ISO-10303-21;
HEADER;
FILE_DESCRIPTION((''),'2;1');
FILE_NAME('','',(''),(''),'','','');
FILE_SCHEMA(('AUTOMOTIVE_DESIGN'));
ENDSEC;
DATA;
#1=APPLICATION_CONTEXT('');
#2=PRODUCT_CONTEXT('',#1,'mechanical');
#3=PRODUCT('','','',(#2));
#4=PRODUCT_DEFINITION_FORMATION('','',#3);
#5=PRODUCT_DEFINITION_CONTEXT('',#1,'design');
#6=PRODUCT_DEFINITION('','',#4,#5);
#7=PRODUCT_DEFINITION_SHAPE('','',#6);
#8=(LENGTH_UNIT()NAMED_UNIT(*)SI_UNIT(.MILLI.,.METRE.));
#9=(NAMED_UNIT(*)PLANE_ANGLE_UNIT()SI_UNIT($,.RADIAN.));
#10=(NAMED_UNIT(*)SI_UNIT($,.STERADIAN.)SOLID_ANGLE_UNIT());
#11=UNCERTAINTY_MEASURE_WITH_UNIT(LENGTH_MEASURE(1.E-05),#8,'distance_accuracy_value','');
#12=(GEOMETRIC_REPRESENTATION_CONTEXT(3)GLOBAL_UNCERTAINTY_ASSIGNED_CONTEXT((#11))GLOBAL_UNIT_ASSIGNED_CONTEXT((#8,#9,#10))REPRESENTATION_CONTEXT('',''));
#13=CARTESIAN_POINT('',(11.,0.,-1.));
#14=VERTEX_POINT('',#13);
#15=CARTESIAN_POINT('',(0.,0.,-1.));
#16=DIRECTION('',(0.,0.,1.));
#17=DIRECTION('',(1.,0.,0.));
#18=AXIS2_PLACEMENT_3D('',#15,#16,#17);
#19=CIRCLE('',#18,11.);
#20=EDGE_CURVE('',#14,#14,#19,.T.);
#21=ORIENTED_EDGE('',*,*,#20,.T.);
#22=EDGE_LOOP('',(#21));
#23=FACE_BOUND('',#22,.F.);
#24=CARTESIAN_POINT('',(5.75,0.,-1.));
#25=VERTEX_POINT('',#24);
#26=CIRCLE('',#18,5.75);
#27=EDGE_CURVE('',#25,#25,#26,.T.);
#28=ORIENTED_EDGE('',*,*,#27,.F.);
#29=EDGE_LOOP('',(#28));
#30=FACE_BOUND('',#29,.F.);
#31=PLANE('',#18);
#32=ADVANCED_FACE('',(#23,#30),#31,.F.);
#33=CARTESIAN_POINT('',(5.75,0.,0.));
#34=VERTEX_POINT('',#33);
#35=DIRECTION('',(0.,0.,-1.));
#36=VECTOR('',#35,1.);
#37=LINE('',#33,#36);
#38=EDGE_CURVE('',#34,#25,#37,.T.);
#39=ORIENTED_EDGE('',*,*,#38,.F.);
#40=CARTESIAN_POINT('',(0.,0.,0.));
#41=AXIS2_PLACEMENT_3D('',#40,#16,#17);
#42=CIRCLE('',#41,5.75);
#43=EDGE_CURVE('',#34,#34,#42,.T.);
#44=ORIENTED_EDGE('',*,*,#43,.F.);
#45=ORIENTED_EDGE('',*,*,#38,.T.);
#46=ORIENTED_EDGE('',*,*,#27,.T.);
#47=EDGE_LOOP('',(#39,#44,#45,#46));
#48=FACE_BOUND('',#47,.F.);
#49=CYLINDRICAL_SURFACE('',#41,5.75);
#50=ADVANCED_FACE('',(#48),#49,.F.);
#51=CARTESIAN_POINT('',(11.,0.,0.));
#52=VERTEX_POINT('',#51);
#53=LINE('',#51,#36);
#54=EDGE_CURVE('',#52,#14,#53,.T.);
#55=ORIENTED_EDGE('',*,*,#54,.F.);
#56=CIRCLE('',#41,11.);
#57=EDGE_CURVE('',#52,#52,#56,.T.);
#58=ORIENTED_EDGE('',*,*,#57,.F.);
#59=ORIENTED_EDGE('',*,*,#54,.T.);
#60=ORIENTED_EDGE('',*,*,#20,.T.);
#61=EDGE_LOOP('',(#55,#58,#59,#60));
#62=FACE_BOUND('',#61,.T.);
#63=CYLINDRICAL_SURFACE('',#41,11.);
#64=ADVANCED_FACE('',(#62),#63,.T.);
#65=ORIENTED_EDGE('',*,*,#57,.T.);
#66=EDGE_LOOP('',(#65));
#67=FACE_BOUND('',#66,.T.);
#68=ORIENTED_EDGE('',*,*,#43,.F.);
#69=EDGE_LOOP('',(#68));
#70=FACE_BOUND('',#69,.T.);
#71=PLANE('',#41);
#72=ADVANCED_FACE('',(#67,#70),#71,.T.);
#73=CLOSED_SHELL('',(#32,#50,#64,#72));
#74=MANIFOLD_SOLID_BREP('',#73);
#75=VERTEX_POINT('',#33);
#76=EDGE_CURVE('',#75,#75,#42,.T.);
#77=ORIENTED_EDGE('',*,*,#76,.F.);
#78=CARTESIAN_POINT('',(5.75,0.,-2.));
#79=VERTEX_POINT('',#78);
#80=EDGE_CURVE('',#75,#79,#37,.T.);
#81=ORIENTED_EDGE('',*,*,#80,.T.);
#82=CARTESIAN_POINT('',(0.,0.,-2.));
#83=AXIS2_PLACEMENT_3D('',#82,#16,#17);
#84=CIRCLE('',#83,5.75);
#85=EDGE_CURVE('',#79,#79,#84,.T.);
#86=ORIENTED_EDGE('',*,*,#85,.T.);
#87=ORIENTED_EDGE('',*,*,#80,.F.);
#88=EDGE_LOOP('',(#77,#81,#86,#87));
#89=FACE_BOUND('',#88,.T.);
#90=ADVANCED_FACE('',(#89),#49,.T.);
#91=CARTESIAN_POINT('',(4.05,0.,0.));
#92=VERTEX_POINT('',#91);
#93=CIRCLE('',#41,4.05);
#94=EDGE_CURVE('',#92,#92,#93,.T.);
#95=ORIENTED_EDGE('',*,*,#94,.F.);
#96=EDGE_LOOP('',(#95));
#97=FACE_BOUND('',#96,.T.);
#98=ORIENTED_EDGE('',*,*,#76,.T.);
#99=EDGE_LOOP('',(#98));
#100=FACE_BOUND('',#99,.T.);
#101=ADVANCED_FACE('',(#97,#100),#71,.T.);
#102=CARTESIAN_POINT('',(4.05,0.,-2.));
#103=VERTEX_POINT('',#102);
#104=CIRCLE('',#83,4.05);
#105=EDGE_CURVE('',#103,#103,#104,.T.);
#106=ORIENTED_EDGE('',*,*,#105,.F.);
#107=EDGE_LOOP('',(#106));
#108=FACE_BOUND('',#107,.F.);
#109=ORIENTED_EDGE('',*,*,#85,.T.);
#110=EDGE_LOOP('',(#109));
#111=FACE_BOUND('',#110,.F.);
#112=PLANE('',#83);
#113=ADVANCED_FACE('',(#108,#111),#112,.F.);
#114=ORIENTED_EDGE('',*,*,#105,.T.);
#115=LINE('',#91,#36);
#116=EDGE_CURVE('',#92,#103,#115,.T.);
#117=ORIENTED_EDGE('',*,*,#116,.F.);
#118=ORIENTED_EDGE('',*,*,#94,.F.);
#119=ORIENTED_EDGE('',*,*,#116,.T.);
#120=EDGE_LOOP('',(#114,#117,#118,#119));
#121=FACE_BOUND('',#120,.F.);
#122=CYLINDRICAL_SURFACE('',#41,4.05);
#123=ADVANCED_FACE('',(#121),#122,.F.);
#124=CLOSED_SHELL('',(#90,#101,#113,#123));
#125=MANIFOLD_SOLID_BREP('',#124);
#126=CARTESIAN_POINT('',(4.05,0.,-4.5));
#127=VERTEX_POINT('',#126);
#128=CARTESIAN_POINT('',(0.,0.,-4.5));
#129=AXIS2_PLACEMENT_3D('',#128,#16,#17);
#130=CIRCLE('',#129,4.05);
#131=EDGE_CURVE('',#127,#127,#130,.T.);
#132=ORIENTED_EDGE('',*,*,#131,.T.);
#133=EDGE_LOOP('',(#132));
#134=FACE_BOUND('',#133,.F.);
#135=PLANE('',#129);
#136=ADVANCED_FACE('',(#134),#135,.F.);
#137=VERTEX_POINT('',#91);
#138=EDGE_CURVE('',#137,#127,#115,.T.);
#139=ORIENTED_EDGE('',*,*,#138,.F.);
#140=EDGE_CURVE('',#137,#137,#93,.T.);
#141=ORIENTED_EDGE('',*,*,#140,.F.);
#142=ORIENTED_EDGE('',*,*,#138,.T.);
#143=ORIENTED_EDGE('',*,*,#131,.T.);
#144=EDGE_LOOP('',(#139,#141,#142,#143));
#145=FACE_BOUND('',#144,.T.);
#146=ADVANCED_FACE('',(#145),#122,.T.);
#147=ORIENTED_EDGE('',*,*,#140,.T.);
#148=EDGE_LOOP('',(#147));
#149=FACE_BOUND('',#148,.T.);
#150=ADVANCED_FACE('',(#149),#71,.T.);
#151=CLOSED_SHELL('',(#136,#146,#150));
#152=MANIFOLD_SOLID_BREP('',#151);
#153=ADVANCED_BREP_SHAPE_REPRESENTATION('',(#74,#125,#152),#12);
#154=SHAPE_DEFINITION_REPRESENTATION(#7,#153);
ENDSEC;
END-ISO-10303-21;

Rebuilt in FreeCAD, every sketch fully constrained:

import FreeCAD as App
import Part
import Sketcher
Q = App.Units.Quantity

doc = App.newDocument("Part")
body = doc.addObject("PartDesign::Body", "Body")

# Sketch on XY plane
sketch1 = doc.addObject("Sketcher::SketchObject", "Sketch")
body.addObject(sketch1)
sketch1.AttachmentSupport = (doc.XY_Plane, [""])
sketch1.MapMode = "FlatFace"
sketch1.addGeometry(Part.Circle(App.Vector(0, 0, 0), App.Vector(0, 0, 1), 5.8), False)
sketch1.addGeometry(Part.Circle(App.Vector(0, 0, 0), App.Vector(0, 0, 1), 4), False)
sketch1.addConstraint(Sketcher.Constraint("Coincident", 0, 3, -1, 1))
sketch1.addConstraint(Sketcher.Constraint("Coincident", 1, 3, -1, 1))
sketch1.addConstraint(Sketcher.Constraint("Diameter", 0, Q("11.5 mm")))
sketch1.addConstraint(Sketcher.Constraint("Diameter", 1, Q("8.1 mm")))
pad1 = doc.addObject("PartDesign::Pad", "Pad")
body.addObject(pad1)
pad1.Profile = sketch1
pad1.Length = 2
pad1.Reversed = True
body2 = doc.addObject("PartDesign::Body", "Body001")

# Sketch on XY plane
sketch2 = doc.addObject("Sketcher::SketchObject", "Sketch001")
body2.addObject(sketch2)
sketch2.AttachmentSupport = (doc.getObject("XY_Plane001"), [""])
sketch2.MapMode = "FlatFace"
sketch2.addGeometry(Part.Circle(App.Vector(0, 0, 0), App.Vector(0, 0, 1), 11), False)
sketch2.addGeometry(Part.Circle(App.Vector(0, 0, 0), App.Vector(0, 0, 1), 6), False)
sketch2.addConstraint(Sketcher.Constraint("Coincident", 0, 3, -1, 1))
sketch2.addConstraint(Sketcher.Constraint("Coincident", 1, 3, -1, 1))
sketch2.addConstraint(Sketcher.Constraint("Diameter", 0, Q("22 mm")))
sketch2.addConstraint(Sketcher.Constraint("Diameter", 1, Q("11.5 mm")))
pad2 = doc.addObject("PartDesign::Pad", "Pad001")
body2.addObject(pad2)
pad2.Profile = sketch2
pad2.Length = 1
pad2.Reversed = True
body3 = doc.addObject("PartDesign::Body", "Body002")

# Sketch on XY plane
sketch3 = doc.addObject("Sketcher::SketchObject", "Sketch002")
body3.addObject(sketch3)
sketch3.AttachmentSupport = (doc.getObject("XY_Plane002"), [""])
sketch3.MapMode = "FlatFace"
sketch3.addGeometry(Part.Circle(App.Vector(0, 0, 0), App.Vector(0, 0, 1), 4), False)
sketch3.addConstraint(Sketcher.Constraint("Coincident", 0, 3, -1, 1))
sketch3.addConstraint(Sketcher.Constraint("Diameter", 0, Q("8.1 mm")))
pad3 = doc.addObject("PartDesign::Pad", "Pad002")
body3.addObject(pad3)
pad3.Profile = sketch3
pad3.Length = 4.5
pad3.Reversed = True

doc.recompute()
